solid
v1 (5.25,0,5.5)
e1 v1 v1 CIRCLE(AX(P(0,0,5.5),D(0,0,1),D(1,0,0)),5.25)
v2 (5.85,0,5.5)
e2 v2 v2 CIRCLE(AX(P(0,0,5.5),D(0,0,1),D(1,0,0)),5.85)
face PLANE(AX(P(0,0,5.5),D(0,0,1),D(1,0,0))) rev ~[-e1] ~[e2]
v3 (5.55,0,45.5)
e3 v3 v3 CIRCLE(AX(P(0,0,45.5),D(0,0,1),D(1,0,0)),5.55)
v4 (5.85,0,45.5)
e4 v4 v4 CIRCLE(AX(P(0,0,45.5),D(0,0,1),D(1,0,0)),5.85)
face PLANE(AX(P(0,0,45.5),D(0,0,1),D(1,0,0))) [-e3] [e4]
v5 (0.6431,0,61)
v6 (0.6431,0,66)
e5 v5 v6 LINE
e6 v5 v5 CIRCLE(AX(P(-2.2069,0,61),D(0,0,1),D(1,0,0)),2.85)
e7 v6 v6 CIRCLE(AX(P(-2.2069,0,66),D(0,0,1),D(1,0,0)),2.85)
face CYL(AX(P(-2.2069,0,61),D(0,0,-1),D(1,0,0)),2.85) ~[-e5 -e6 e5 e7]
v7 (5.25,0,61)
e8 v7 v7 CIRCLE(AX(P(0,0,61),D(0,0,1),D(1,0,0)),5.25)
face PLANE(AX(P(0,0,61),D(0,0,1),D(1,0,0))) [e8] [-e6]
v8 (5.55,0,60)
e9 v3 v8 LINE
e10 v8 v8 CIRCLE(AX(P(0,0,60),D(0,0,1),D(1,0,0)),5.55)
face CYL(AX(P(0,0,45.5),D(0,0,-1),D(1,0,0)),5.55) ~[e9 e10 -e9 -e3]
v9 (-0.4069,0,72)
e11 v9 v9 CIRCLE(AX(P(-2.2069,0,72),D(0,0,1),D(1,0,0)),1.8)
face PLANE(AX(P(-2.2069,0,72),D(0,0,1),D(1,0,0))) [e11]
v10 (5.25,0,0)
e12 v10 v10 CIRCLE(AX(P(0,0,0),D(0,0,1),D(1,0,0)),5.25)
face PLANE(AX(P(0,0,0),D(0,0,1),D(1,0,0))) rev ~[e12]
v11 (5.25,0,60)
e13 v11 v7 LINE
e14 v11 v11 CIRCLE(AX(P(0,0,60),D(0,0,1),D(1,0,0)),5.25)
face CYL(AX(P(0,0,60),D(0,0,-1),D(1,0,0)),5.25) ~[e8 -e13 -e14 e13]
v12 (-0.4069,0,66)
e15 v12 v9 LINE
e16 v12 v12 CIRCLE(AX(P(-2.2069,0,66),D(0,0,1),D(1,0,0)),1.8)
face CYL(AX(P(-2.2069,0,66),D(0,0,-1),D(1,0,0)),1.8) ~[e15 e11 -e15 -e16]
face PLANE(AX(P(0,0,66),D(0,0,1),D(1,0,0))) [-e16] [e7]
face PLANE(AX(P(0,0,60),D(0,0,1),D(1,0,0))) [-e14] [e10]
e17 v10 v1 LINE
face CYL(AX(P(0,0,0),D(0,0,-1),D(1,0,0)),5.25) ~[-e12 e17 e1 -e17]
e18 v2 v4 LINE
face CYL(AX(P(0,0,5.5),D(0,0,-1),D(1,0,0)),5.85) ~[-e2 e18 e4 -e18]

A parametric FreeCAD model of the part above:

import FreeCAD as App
import Part
import Sketcher

V = App.Vector
Q = App.Units.Quantity

doc = App.newDocument("Part")
body = doc.addObject("PartDesign::Body", "Body")

# Sketch on XY plane
sketch1 = doc.addObject("Sketcher::SketchObject", "Sketch")
body.addObject(sketch1)
sketch1.AttachmentSupport = (doc.XY_Plane, [""])
sketch1.MapMode = "FlatFace"
sketch1.addGeometry(Part.Circle(V(0, 0, 0), V(0, 0, 1), 5), False)
sketch1.addConstraint([
    Sketcher.Constraint("Coincident", 0, 3, -1, 1),
    Sketcher.Constraint("Diameter", 0, Q("10.5 mm")),
])
pad1 = doc.addObject("PartDesign::Pad", "Pad")
body.addObject(pad1)
pad1.Profile = sketch1
pad1.Length = 5.5

# Sketch on XY plane
sketch2 = doc.addObject("Sketcher::SketchObject", "Sketch001")
body.addObject(sketch2)
sketch2.AttachmentSupport = (doc.XY_Plane, [""])
sketch2.MapMode = "FlatFace"
sketch2.AttachmentOffset = App.Placement(V(0, 0, 5.5), App.Rotation())
sketch2.addGeometry(Part.Circle(V(0, 0, 0), V(0, 0, 1), 6), False)
sketch2.addConstraint([
    Sketcher.Constraint("Coincident", 0, 3, -1, 1),
    Sketcher.Constraint("Diameter", 0, Q("11.7 mm")),
])
pad2 = doc.addObject("PartDesign::Pad", "Pad001")
body.addObject(pad2)
pad2.Profile = sketch2
pad2.Length = 40

# Sketch on XY plane
sketch3 = doc.addObject("Sketcher::SketchObject", "Sketch002")
body.addObject(sketch3)
sketch3.AttachmentSupport = (doc.XY_Plane, [""])
sketch3.MapMode = "FlatFace"
sketch3.AttachmentOffset = App.Placement(V(0, 0, 45.5), App.Rotation())
sketch3.addGeometry(Part.Circle(V(0, 0, 0), V(0, 0, 1), 6), False)
sketch3.addConstraint([
    Sketcher.Constraint("Coincident", 0, 3, -1, 1),
    Sketcher.Constraint("Diameter", 0, Q("11.1 mm")),
])
pad3 = doc.addObject("PartDesign::Pad", "Pad002")
body.addObject(pad3)
pad3.Profile = sketch3
pad3.Length = 14.5

# Sketch on XY plane
sketch4 = doc.addObject("Sketcher::SketchObject", "Sketch003")
body.addObject(sketch4)
sketch4.AttachmentSupport = (doc.XY_Plane, [""])
sketch4.MapMode = "FlatFace"
sketch4.AttachmentOffset = App.Placement(V(0, 0, 60), App.Rotation())
sketch4.addGeometry(Part.Circle(V(0, 0, 0), V(0, 0, 1), 5), False)
sketch4.addConstraint([
    Sketcher.Constraint("Coincident", 0, 3, -1, 1),
    Sketcher.Constraint("Diameter", 0, Q("10.5 mm")),
])
pad4 = doc.addObject("PartDesign::Pad", "Pad003")
body.addObject(pad4)
pad4.Profile = sketch4
pad4.Length = 1

# Sketch on XY plane
sketch5 = doc.addObject("Sketcher::SketchObject", "Sketch004")
body.addObject(sketch5)
sketch5.AttachmentSupport = (doc.XY_Plane, [""])
sketch5.MapMode = "FlatFace"
sketch5.AttachmentOffset = App.Placement(V(0, 0, 61), App.Rotation())
sketch5.addGeometry(Part.Circle(V(-2.2, 0, 0), V(0, 0, 1), 2.9), False)
sketch5.addConstraint([
    Sketcher.Constraint("PointOnObject", 0, 3, -1),
    Sketcher.Constraint("Diameter", 0, Q("5.7 mm")),
    Sketcher.Constraint("DistanceX", 0, 3, -1, 1, Q("2.207 mm")),
])
pad5 = doc.addObject("PartDesign::Pad", "Pad004")
body.addObject(pad5)
pad5.Profile = sketch5
pad5.Length = 5

# Sketch on XY plane
sketch6 = doc.addObject("Sketcher::SketchObject", "Sketch005")
body.addObject(sketch6)
sketch6.AttachmentSupport = (doc.XY_Plane, [""])
sketch6.MapMode = "FlatFace"
sketch6.AttachmentOffset = App.Placement(V(0, 0, 66), App.Rotation())
sketch6.addGeometry(Part.Circle(V(-2.2, 0, 0), V(0, 0, 1), 1.8), False)
sketch6.addConstraint([
    Sketcher.Constraint("PointOnObject", 0, 3, -1),
    Sketcher.Constraint("Diameter", 0, Q("3.6 mm")),
    Sketcher.Constraint("DistanceX", 0, 3, -1, 1, Q("2.207 mm")),
])
pad6 = doc.addObject("PartDesign::Pad", "Pad005")
body.addObject(pad6)
pad6.Profile = sketch6
pad6.Length = 6

doc.recompute()
